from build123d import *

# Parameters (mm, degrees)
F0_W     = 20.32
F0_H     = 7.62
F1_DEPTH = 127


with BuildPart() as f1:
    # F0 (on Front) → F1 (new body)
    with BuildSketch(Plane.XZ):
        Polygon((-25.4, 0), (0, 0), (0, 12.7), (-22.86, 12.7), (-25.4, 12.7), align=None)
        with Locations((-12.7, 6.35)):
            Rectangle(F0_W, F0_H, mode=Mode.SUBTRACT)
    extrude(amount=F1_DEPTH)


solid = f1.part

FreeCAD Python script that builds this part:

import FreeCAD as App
import Part
import Sketcher
from FreeCAD import Vector
Q = App.Units.Quantity

doc = App.newDocument("Part")
body = doc.addObject("PartDesign::Body", "Body")

sketch1 = doc.addObject("Sketcher::SketchObject", "Sketch")
body.addObject(sketch1)
sketch1.AttachmentSupport = (doc.XZ_Plane, [""])
sketch1.MapMode = "FlatFace"
sketch1.addGeometry([
    Part.LineSegment(Vector(-25, 0, 0), Vector(0, 0, 0)),
    Part.LineSegment(Vector(0, 0, 0), Vector(0, 13, 0)),
    Part.LineSegment(Vector(0, 13, 0), Vector(-25, 13, 0)),
    Part.LineSegment(Vector(-25, 13, 0), Vector(-25, 0, 0)),
    Part.LineSegment(Vector(-3, 3, 0), Vector(-23, 3, 0)),
    Part.LineSegment(Vector(-23, 3, 0), Vector(-23, 10, 0)),
    Part.LineSegment(Vector(-23, 10, 0), Vector(-3, 10, 0)),
    Part.LineSegment(Vector(-3, 10, 0), Vector(-3, 3, 0)),
], False)
sketch1.addConstraint([
    Sketcher.Constraint("Coincident", 0, 2, 1, 1),
    Sketcher.Constraint("Coincident", 1, 2, 2, 1),
    Sketcher.Constraint("Coincident", 2, 2, 3, 1),
    Sketcher.Constraint("Coincident", 3, 2, 0, 1),
    Sketcher.Constraint("Coincident", 4, 2, 5, 1),
    Sketcher.Constraint("Coincident", 5, 2, 6, 1),
    Sketcher.Constraint("Coincident", 6, 2, 7, 1),
    Sketcher.Constraint("Coincident", 7, 2, 4, 1),
    Sketcher.Constraint("Horizontal", 0),
    Sketcher.Constraint("Vertical", 1),
    Sketcher.Constraint("Horizontal", 2),
    Sketcher.Constraint("Vertical", 3),
    Sketcher.Constraint("Horizontal", 4),
    Sketcher.Constraint("Vertical", 5),
    Sketcher.Constraint("Horizontal", 6),
    Sketcher.Constraint("Vertical", 7),
    Sketcher.Constraint("Coincident", 0, 2, -1, 1),
    Sketcher.Constraint("DistanceX", 0, 1, 0, 2, Q("1 in")),
    Sketcher.Constraint("DistanceX", 4, 2, 4, 1, Q("0.8 in")),
    Sketcher.Constraint("DistanceY", 1, 1, 1, 2, Q("0.5 in")),
    Sketcher.Constraint("DistanceY", 5, 1, 5, 2, Q("0.3 in")),
    Sketcher.Constraint("DistanceX", 4, 2, -1, 1, Q("0.9 in")),
    Sketcher.Constraint("DistanceY", -1, 1, 4, 2, Q("0.1 in")),
])
pad1 = doc.addObject("PartDesign::Pad", "Pad")
body.addObject(pad1)
pad1.Profile = sketch1
pad1.Length = Q("5 in")

doc.recompute()
